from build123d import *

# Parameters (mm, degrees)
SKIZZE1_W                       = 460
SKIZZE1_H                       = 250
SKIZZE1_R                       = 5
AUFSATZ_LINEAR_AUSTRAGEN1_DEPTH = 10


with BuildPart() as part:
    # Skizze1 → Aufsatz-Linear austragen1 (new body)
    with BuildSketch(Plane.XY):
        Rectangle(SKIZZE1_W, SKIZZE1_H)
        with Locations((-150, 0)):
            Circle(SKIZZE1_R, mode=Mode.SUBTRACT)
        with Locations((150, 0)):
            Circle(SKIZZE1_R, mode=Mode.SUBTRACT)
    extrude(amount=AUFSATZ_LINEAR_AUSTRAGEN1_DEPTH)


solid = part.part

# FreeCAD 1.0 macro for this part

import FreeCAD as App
import Part
import Sketcher

doc = App.newDocument("Part")
body = doc.addObject("PartDesign::Body", "Body")

sketch1 = body.newObject("Sketcher::SketchObject", "Sketch")
sketch1.AttachmentSupport = (doc.getObject("XY_Plane"), [""])
sketch1.MapMode = "FlatFace"
sketch1.addGeometry([
    Part.LineSegment(App.Vector(-230, 125, 0), App.Vector(-230, -125, 0)),
    Part.LineSegment(App.Vector(-230, -125, 0), App.Vector(230, -125, 0)),
    Part.LineSegment(App.Vector(230, -125, 0), App.Vector(230, 125, 0)),
    Part.LineSegment(App.Vector(230, 125, 0), App.Vector(-230, 125, 0)),
    Part.Circle(App.Vector(-150, 0, 0), App.Vector(0, 0, 1), 5),
    Part.Circle(App.Vector(150, 0, 0), App.Vector(0, 0, 1), 5),
], False)
sketch1.addConstraint([
    Sketcher.Constraint("Coincident", 0, 2, 1, 1),
    Sketcher.Constraint("Coincident", 1, 2, 2, 1),
    Sketcher.Constraint("Coincident", 2, 2, 3, 1),
    Sketcher.Constraint("Coincident", 3, 2, 0, 1),
    Sketcher.Constraint("Vertical", 0),
    Sketcher.Constraint("Horizontal", 1),
    Sketcher.Constraint("Vertical", 2),
    Sketcher.Constraint("Horizontal", 3),
    Sketcher.Constraint("Equal", 4, 5),
    Sketcher.Constraint("Symmetric", 4, 3, 5, 3, -1, 1),
    Sketcher.Constraint("Symmetric", 0, 2, 2, 2, -1, 1),
    Sketcher.Constraint("PointOnObject", 4, 3, -1),
    Sketcher.Constraint("Diameter", 4, 10.0),
    Sketcher.Constraint("DistanceX", 1, 1, 1, 2, 460.0),
    Sketcher.Constraint("DistanceY", 0, 2, 0, 1, 250.0),
    Sketcher.Constraint("DistanceX", 4, 3, -1, 1, 150.0),
])
pad1 = body.newObject("PartDesign::Pad", "Pad")
pad1.Profile = sketch1
pad1.Length = 10

doc.recompute()
